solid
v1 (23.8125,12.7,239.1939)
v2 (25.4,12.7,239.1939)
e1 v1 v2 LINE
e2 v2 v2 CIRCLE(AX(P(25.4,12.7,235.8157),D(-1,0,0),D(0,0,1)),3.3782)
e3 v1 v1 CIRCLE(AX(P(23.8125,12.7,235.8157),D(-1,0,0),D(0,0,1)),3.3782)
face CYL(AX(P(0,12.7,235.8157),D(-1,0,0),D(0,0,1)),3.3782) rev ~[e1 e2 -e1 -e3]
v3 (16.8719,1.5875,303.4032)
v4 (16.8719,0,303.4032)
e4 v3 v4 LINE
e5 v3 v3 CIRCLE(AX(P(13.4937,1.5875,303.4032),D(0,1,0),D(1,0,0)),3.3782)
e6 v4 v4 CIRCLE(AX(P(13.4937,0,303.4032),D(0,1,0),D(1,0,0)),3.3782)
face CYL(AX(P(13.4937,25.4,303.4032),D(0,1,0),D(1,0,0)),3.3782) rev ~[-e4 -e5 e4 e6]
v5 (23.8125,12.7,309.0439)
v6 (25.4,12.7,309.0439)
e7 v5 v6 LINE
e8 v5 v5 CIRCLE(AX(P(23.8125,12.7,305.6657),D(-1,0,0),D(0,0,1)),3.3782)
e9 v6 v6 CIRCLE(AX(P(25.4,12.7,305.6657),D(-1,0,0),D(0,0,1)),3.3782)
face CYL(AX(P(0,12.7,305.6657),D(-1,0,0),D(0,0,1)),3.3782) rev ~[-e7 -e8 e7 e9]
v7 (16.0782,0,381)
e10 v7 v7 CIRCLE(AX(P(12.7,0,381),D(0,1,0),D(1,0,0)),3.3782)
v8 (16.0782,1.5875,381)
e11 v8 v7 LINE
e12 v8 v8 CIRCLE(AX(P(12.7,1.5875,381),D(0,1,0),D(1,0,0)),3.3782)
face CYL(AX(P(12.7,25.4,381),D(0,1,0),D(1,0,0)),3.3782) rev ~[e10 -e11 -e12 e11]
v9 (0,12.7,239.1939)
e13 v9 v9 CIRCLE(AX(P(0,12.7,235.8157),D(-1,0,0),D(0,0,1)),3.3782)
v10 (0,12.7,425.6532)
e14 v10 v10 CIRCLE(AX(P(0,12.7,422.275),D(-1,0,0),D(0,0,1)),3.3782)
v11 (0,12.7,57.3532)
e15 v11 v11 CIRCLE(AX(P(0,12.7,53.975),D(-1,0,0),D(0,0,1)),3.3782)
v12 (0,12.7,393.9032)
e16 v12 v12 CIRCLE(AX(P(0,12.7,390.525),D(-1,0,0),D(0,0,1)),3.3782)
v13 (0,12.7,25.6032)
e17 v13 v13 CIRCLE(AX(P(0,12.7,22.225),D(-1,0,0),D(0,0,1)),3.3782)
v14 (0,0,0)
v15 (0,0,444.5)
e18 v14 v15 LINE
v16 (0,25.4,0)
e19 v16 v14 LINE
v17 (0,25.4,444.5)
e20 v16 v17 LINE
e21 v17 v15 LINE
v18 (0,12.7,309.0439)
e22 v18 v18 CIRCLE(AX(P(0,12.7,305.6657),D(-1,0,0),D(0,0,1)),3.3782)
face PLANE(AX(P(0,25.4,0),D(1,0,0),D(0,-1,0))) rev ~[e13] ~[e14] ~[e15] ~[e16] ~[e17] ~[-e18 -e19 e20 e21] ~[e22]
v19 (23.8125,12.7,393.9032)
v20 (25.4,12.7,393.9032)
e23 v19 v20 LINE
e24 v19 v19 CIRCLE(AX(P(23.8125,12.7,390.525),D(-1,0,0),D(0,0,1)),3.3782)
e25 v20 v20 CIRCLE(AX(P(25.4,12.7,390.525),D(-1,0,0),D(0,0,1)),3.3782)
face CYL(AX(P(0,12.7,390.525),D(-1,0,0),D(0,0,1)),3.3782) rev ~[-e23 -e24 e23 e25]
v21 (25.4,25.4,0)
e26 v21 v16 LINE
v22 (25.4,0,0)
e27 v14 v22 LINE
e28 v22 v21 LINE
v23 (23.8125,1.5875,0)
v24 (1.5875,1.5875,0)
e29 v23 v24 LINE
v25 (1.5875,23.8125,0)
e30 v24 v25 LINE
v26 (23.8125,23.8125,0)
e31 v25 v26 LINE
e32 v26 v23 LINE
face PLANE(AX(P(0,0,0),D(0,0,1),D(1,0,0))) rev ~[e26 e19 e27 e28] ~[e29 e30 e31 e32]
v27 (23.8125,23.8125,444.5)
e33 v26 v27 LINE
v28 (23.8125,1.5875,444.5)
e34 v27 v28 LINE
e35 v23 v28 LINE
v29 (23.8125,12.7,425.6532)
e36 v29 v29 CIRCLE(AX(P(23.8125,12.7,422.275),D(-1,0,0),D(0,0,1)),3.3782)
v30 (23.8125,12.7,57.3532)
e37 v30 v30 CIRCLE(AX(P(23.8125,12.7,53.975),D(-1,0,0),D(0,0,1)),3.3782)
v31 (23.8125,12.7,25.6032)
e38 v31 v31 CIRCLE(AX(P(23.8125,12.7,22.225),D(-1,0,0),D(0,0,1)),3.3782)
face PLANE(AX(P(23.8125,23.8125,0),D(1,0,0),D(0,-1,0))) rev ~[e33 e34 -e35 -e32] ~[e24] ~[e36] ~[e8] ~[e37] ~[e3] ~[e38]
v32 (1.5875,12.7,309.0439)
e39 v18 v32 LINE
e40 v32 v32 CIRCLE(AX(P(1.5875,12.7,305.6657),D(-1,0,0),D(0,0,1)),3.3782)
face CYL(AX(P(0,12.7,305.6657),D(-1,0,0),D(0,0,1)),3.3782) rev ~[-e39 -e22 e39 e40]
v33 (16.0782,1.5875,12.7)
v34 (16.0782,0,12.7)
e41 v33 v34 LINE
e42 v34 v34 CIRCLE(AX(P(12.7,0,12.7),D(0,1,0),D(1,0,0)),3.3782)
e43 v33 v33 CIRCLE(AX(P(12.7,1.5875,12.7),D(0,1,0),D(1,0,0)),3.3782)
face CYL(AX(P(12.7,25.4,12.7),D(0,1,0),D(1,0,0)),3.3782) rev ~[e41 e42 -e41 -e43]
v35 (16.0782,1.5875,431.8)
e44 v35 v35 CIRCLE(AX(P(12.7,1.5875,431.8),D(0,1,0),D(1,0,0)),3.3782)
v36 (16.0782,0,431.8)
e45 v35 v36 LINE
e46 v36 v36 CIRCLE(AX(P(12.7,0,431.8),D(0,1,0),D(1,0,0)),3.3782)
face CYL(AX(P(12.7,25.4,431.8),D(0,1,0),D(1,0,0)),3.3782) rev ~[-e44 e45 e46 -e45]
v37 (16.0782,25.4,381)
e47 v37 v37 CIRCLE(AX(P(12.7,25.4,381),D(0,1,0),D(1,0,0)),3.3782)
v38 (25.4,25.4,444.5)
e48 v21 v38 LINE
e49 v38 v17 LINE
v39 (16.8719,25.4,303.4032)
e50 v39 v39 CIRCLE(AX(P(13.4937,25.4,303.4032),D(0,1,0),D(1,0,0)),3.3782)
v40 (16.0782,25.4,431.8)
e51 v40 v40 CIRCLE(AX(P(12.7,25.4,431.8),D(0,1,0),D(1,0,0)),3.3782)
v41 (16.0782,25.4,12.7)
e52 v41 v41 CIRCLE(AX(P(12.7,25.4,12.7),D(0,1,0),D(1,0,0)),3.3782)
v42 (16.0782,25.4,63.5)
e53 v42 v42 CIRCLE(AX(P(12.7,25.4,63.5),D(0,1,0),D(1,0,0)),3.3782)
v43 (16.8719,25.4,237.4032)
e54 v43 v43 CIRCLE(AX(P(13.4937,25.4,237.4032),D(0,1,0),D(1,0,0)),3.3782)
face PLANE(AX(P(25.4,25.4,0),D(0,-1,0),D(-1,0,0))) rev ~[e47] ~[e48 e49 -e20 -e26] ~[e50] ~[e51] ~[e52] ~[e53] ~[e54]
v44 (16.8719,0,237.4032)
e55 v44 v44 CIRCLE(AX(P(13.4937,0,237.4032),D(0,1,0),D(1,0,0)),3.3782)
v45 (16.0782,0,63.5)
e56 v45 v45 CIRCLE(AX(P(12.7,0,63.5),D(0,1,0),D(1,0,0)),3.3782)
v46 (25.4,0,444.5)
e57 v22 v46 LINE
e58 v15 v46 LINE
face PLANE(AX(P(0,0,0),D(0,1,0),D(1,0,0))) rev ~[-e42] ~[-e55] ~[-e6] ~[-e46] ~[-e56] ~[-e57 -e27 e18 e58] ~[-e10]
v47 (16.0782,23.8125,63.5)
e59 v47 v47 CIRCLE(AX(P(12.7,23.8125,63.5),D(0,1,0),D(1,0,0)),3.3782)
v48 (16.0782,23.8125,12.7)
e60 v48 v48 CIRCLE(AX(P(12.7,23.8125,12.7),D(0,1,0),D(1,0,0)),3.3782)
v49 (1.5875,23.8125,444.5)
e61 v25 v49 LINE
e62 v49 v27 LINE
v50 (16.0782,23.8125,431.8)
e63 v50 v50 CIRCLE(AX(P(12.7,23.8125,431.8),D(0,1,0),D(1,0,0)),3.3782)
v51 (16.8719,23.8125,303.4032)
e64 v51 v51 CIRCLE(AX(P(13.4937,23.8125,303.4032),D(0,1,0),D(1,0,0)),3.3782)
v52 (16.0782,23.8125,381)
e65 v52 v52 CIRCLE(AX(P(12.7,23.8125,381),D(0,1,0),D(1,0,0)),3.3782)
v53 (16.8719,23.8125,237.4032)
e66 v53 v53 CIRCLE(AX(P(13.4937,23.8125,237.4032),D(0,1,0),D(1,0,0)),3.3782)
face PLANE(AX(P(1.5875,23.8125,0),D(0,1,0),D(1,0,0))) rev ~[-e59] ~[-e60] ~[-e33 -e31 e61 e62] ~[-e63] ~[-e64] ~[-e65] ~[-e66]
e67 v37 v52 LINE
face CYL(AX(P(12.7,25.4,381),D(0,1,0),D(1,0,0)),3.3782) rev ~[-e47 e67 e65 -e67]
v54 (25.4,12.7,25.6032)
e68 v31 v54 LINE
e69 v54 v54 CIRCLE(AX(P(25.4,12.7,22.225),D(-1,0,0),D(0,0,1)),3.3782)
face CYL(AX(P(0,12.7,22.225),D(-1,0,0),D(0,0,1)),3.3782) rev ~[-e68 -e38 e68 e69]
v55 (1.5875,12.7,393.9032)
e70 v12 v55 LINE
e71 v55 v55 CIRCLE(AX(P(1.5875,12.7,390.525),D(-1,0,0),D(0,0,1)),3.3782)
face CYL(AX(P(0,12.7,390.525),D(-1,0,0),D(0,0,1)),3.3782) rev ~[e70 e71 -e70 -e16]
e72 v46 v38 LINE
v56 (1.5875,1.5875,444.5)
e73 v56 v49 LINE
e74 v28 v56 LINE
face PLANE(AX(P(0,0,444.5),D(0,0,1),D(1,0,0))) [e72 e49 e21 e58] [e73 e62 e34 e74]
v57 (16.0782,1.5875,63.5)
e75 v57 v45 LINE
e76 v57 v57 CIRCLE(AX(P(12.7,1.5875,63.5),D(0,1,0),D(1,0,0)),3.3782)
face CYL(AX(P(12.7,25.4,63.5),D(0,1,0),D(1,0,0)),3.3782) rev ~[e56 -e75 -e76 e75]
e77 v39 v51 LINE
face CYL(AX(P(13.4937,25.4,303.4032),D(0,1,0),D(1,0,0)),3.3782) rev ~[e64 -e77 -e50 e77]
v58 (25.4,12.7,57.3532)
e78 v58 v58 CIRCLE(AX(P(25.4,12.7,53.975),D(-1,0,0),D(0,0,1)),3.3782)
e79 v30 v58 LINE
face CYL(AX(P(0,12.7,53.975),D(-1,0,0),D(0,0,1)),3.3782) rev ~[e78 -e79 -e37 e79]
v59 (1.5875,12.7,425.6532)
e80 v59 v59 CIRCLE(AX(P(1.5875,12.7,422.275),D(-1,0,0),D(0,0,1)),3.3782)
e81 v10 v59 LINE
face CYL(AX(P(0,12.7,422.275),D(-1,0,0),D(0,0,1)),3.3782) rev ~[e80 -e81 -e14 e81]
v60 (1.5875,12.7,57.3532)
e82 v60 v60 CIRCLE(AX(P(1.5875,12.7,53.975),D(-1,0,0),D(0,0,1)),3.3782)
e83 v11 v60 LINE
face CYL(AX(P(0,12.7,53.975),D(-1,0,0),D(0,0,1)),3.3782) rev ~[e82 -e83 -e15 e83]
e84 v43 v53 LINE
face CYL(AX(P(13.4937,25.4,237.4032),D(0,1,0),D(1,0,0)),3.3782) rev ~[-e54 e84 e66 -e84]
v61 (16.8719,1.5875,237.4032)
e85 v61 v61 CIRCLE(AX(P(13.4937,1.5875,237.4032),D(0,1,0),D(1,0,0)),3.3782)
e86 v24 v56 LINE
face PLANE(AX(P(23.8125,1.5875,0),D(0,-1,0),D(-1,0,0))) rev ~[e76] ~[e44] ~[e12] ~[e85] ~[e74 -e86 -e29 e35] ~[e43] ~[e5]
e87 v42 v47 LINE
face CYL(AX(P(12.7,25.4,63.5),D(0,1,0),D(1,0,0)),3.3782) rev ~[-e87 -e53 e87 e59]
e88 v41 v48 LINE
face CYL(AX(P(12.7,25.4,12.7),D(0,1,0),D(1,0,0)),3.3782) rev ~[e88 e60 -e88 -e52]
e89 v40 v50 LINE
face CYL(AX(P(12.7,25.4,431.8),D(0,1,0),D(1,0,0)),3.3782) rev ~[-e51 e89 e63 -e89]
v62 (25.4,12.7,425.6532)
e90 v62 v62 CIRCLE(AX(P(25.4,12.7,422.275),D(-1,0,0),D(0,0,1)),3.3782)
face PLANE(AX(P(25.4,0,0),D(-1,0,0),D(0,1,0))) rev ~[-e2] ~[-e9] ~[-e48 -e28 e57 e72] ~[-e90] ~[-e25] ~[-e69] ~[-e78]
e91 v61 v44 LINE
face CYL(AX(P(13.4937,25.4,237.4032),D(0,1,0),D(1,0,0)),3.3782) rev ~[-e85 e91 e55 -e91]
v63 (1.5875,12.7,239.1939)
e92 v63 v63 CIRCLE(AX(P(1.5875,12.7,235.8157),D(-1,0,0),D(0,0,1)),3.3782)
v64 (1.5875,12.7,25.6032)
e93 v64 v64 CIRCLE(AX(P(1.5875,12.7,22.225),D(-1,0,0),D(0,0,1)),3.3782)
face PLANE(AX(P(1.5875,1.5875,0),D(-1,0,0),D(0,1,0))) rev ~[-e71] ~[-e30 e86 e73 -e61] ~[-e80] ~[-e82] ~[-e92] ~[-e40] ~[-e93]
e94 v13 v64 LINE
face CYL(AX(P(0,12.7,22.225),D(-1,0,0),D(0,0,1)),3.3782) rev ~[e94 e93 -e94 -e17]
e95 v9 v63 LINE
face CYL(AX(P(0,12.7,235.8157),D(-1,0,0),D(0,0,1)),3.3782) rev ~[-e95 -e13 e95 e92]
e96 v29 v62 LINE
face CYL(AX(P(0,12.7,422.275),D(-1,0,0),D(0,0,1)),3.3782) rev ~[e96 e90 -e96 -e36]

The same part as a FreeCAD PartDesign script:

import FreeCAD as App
import Part
import Sketcher

V = App.Vector
Q = App.Units.Quantity


def add_polygon(sketch, points):
    """Adds a closed chain of lines whose ends are joined by coincident constraints."""
    first, n = sketch.GeometryCount, len(points)
    for a, b in zip(points, points[1:] + points[:1]):
        sketch.addGeometry(Part.LineSegment(App.Vector(*a, 0), App.Vector(*b, 0)), False)
    for i in range(n):
        sketch.addConstraint(Sketcher.Constraint("Coincident", first + i, 2, first + (i + 1) % n, 1))

doc = App.newDocument("Part")
params = doc.addObject("Spreadsheet::Sheet", "Params")
for row, (alias, value) in enumerate([
    ("sketch1_width", "1 in"),
    ("pad1_length", "17.5 in"),
    ("sketch2_diameter", "0.266 in"),
    ("pocket1_length", "1 in"),
    ("sketch3_diameter", "0.266 in"),
    ("pocket2_length", "1 in"),
], start=1):
    params.set(f"A{row}", alias)
    params.set(f"B{row}", "=" + value)
    params.setAlias(f"B{row}", alias)

body = doc.addObject("PartDesign::Body", "Body")

# Sketch on XY plane
sketch1 = body.newObject("Sketcher::SketchObject", "Sketch")
sketch1.AttachmentSupport = (doc.getObject("XY_Plane"), [""])
sketch1.MapMode = "FlatFace"
add_polygon(sketch1, [(0, 25), (0, 0), (25, 0), (25, 25)])  # lines 0-3
add_polygon(sketch1, [(2, 2), (2, 24), (24, 24), (24, 2)])  # lines 4-7
sketch1.addConstraint([
    Sketcher.Constraint("Vertical", 0),
    Sketcher.Constraint("Horizontal", 1),
    Sketcher.Constraint("Vertical", 2),
    Sketcher.Constraint("Horizontal", 3),
    Sketcher.Constraint("Vertical", 4),
    Sketcher.Constraint("Horizontal", 5),
    Sketcher.Constraint("Vertical", 6),
    Sketcher.Constraint("Horizontal", 7),
    Sketcher.Constraint("Coincident", 0, 2, -1, 1),
    Sketcher.Constraint("Equal", 3, 0),
    Sketcher.Constraint("Equal", 7, 4),
    Sketcher.Constraint("DistanceX", 1, 1, 1, 2, Q("1 in")),
    Sketcher.Constraint("DistanceX", -1, 1, 4, 2, Q("0.0625 in")),
    Sketcher.Constraint("DistanceY", -1, 1, 6, 2, Q("0.0625 in")),
    Sketcher.Constraint("DistanceY", 4, 2, 3, 2, Q("0.0625 in")),
])
sketch1.setExpression("Constraints[19]", "Params.sketch1_width")
pad1 = body.newObject("PartDesign::Pad", "Pad")
pad1.Profile = sketch1
pad1.setExpression("Length", "Params.pad1_length")

# Sketch on XZ plane
sketch2 = body.newObject("Sketcher::SketchObject", "Sketch001")
sketch2.AttachmentSupport = (doc.getObject("XZ_Plane"), [""])
sketch2.MapMode = "FlatFace"
sketch2.AttachmentOffset = App.Placement(V(0, 0, -1 * 25.4), App.Rotation())
sketch2.addGeometry([
    Part.Circle(V(12.7, 381, 0), V(0, 0, 1), 3.4),  # 0
    Part.Circle(V(12.7, 431.8, 0), V(0, 0, 1), 3.4),  # 1
    Part.Circle(V(13.5, 237.4, 0), V(0, 0, 1), 3.4),  # 2
    Part.Circle(V(13.5, 303.4, 0), V(0, 0, 1), 3.4),  # 3
    Part.Circle(V(12.7, 12.7, 0), V(0, 0, 1), 3.4),  # 4
    Part.Circle(V(12.7, 63.5, 0), V(0, 0, 1), 3.4),  # 5
], False)
sketch2.addConstraint([
    Sketcher.Constraint("Equal", 0, 1),
    Sketcher.Constraint("Equal", 1, 2),
    Sketcher.Constraint("Equal", 2, 3),
    Sketcher.Constraint("Equal", 3, 4),
    Sketcher.Constraint("Equal", 4, 5),
    Sketcher.Constraint("Vertical", 0, 3, 1, 3),
    Sketcher.Constraint("Vertical", 2, 3, 3, 3),
    Sketcher.Constraint("Vertical", 1, 3, 4, 3),
    Sketcher.Constraint("Vertical", 4, 3, 5, 3),
    Sketcher.Constraint("Diameter", 0, Q("0.266 in")),
    Sketcher.Constraint("DistanceY", -1, 1, 0, 3, Q("15 in")),
    Sketcher.Constraint("DistanceY", -1, 1, 1, 3, Q("17 in")),
    Sketcher.Constraint("DistanceY", 4, 3, 5, 3, Q("2 in")),
    Sketcher.Constraint("DistanceX", -1, 1, 0, 3, Q("0.5 in")),
    Sketcher.Constraint("DistanceY", -1, 1, 4, 3, Q("0.5 in")),
    Sketcher.Constraint("DistanceX", -1, 1, 2, 3, Q("0.531248 in")),
    Sketcher.Constraint("DistanceY", -1, 1, 3, 3, Q("11.945 in")),
    Sketcher.Constraint("DistanceY", -1, 1, 2, 3, 237.4032),
])
sketch2.setExpression("Constraints[9]", "Params.sketch2_diameter")
pocket1 = body.newObject("PartDesign::Pocket", "Pocket")
pocket1.Profile = sketch2
pocket1.setExpression("Length", "Params.pocket1_length")
pocket1.Reversed = True

# Sketch on YZ plane
sketch3 = body.newObject("Sketcher::SketchObject", "Sketch002")
sketch3.AttachmentSupport = (doc.getObject("YZ_Plane"), [""])
sketch3.MapMode = "FlatFace"
sketch3.addGeometry([
    Part.Circle(V(12.7, 422.3, 0), V(0, 0, 1), 3.4),  # 0
    Part.Circle(V(12.7, 390.5, 0), V(0, 0, 1), 3.4),  # 1
    Part.Circle(V(12.7, 305.7, 0), V(0, 0, 1), 3.4),  # 2
    Part.Circle(V(12.7, 235.8, 0), V(0, 0, 1), 3.4),  # 3
    Part.Circle(V(12.7, 54, 0), V(0, 0, 1), 3.4),  # 4
    Part.Circle(V(12.7, 22.2, 0), V(0, 0, 1), 3.4),  # 5
], False)
sketch3.addConstraint([
    Sketcher.Constraint("Equal", 0, 1),
    Sketcher.Constraint("Equal", 1, 2),
    Sketcher.Constraint("Equal", 2, 3),
    Sketcher.Constraint("Equal", 3, 4),
    Sketcher.Constraint("Equal", 4, 5),
    Sketcher.Constraint("Vertical", 0, 3, 1, 3),
    Sketcher.Constraint("Vertical", 1, 3, 2, 3),
    Sketcher.Constraint("Vertical", 2, 3, 3, 3),
    Sketcher.Constraint("Vertical", 3, 3, 4, 3),
    Sketcher.Constraint("Vertical", 4, 3, 5, 3),
    Sketcher.Constraint("Diameter", 0, Q("0.266 in")),
    Sketcher.Constraint("DistanceX", -1, 1, 0, 3, Q("0.5 in")),
    Sketcher.Constraint("DistanceY", 4, 3, 0, 3, Q("14.5 in")),
    Sketcher.Constraint("DistanceY", 5, 3, 1, 3, Q("14.5 in")),
    Sketcher.Constraint("DistanceY", 1, 3, 0, 3, Q("1.25 in")),
    Sketcher.Constraint("DistanceY", 3, 3, 2, 3, Q("2.75 in")),
    Sketcher.Constraint("DistanceY", -1, 1, 0, 3, Q("16.625 in")),
    Sketcher.Constraint("DistanceY", -1, 1, 2, 3, 305.6657),
])
sketch3.setExpression("Constraints[10]", "Params.sketch3_diameter")
pocket2 = body.newObject("PartDesign::Pocket", "Pocket001")
pocket2.Profile = sketch3
pocket2.setExpression("Length", "Params.pocket2_length")
pocket2.Reversed = True

doc.recompute()
